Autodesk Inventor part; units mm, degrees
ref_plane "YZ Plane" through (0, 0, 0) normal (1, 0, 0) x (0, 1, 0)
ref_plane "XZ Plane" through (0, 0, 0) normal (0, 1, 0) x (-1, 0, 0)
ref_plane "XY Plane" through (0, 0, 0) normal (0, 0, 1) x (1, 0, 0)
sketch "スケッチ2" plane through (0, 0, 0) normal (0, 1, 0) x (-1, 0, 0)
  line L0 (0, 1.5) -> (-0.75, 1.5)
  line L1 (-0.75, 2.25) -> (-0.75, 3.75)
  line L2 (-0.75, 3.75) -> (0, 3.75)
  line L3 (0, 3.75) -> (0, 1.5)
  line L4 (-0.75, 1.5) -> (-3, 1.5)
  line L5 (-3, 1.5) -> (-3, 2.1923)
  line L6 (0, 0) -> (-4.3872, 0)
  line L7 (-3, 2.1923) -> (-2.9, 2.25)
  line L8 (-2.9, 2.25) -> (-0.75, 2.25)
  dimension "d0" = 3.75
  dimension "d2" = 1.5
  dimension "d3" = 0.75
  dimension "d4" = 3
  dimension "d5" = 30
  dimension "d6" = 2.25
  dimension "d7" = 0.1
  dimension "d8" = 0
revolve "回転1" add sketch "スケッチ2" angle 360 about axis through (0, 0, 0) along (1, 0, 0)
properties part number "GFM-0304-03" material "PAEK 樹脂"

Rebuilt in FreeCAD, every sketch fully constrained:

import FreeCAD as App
import Part
import Sketcher
Q = App.Units.Quantity


def add_polygon(sketch, points):
    """Adds a closed chain of lines whose ends are joined by coincident constraints."""
    first, n = sketch.GeometryCount, len(points)
    for a, b in zip(points, points[1:] + points[:1]):
        sketch.addGeometry(Part.LineSegment(App.Vector(*a, 0), App.Vector(*b, 0)), False)
    for i in range(n):
        sketch.addConstraint(Sketcher.Constraint("Coincident", first + i, 2, first + (i + 1) % n, 1))

doc = App.newDocument("Part")
params = doc.addObject("Spreadsheet::Sheet", "Params")
for row, (alias, value) in enumerate([
    ("sketch1_width", "3 mm"),
    ("sketch1_height", "1.5 mm"),
    ("sketch1_width2", "0.75 mm"),
    ("sketch1_height2", "2.25 mm"),
    ("revolution_angle", "360 deg"),
], start=1):
    params.set(f"A{row}", alias)
    params.set(f"B{row}", "=" + value)
    params.setAlias(f"B{row}", alias)

body = doc.addObject("PartDesign::Body", "Body")

sketch1 = body.newObject("Sketcher::SketchObject", "Sketch")
sketch1.AttachmentSupport = (doc.getObject("XZ_Plane"), [""])
sketch1.MapMode = "FlatFace"
add_polygon(sketch1, [(3, 1.5), (0, 1.5), (0, 3.75), (0.75, 3.75), (0.75, 2.25), (2.9, 2.25), (3, 2.19)])
sketch1.addConstraint([
    Sketcher.Constraint("Horizontal", 0),
    Sketcher.Constraint("Vertical", 1),
    Sketcher.Constraint("Horizontal", 2),
    Sketcher.Constraint("Vertical", 3),
    Sketcher.Constraint("Horizontal", 4),
    Sketcher.Constraint("Vertical", 6),
    Sketcher.Constraint("PointOnObject", 0, 2, -2),
    Sketcher.Constraint("DistanceX", 0, 2, 0, 1, Q("3 mm")),
    Sketcher.Constraint("DistanceY", 3, 2, 3, 1, Q("1.5 mm")),
    Sketcher.Constraint("DistanceX", 2, 1, 2, 2, Q("0.75 mm")),
    Sketcher.Constraint("DistanceY", 1, 1, 1, 2, Q("2.25 mm")),
    Sketcher.Constraint("DistanceY", -1, 1, 0, 2, Q("1.5 mm")),
    Sketcher.Constraint("DistanceX", 4, 2, 5, 2, Q("0.1 mm")),
    Sketcher.Constraint("DistanceY", 6, 2, 6, 1, Q("0.6923 mm")),
])
sketch1.setExpression("Constraints[14]", "Params.sketch1_width")
sketch1.setExpression("Constraints[15]", "Params.sketch1_height")
sketch1.setExpression("Constraints[16]", "Params.sketch1_width2")
sketch1.setExpression("Constraints[17]", "Params.sketch1_height2")
revolution = body.newObject("PartDesign::Revolution", "Revolution")
revolution.Profile = sketch1
revolution.ReferenceAxis = (sketch1, ["H_Axis"])
revolution.setExpression("Angle", "Params.revolution_angle")

doc.recompute()
